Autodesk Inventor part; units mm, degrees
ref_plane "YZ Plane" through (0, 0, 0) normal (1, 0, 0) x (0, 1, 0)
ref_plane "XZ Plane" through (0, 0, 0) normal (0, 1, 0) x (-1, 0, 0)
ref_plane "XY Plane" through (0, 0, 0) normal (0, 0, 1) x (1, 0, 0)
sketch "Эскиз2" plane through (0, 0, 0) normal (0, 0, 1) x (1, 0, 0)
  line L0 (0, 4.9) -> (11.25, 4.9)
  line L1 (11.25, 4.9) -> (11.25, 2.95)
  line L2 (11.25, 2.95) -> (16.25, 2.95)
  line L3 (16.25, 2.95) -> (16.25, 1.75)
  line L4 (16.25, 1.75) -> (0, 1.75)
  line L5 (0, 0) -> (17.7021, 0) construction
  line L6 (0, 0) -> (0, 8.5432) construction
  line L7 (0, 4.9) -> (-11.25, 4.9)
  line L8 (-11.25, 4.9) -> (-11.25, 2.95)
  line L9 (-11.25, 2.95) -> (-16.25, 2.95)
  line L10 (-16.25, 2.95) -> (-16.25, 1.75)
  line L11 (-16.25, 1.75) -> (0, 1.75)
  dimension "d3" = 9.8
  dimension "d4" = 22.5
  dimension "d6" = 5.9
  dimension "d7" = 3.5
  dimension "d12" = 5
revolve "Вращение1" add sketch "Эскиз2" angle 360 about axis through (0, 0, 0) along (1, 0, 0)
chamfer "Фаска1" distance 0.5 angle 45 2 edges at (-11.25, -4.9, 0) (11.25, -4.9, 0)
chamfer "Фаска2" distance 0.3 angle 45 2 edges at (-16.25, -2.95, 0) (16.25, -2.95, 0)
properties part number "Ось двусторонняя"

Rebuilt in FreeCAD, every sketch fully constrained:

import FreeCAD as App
import Part
import Sketcher


def edges_at(feature, points):
    """Names of the edges that pass closest to the given points."""
    edges = feature.Shape.Edges
    near = lambda p: min(range(len(edges)), key=lambda i: edges[i].distToShape(Part.Vertex(*p))[0])
    return sorted({f"Edge{near(p) + 1}" for p in points})

doc = App.newDocument("Part")
body = doc.addObject("PartDesign::Body", "Body")

# Sketch on XY plane
sketch1 = doc.addObject("Sketcher::SketchObject", "Sketch")
body.addObject(sketch1)
sketch1.AttachmentSupport = (doc.XY_Plane, [""])
sketch1.MapMode = "FlatFace"
sketch1.addGeometry(Part.LineSegment(App.Vector(11.25, 4.9, 0), App.Vector(-11.25, 4.9, 0)), False)
sketch1.addGeometry(Part.LineSegment(App.Vector(-11.25, 4.9, 0), App.Vector(-11.25, 2.95, 0)), False)
sketch1.addGeometry(Part.LineSegment(App.Vector(-11.25, 2.95, 0), App.Vector(-16.25, 2.95, 0)), False)
sketch1.addGeometry(Part.LineSegment(App.Vector(-16.25, 2.95, 0), App.Vector(-16.25, 1.75, 0)), False)
sketch1.addGeometry(Part.LineSegment(App.Vector(-16.25, 1.75, 0), App.Vector(16.25, 1.75, 0)), False)
sketch1.addGeometry(Part.LineSegment(App.Vector(16.25, 1.75, 0), App.Vector(16.25, 2.95, 0)), False)
sketch1.addGeometry(Part.LineSegment(App.Vector(16.25, 2.95, 0), App.Vector(11.25, 2.95, 0)), False)
sketch1.addGeometry(Part.LineSegment(App.Vector(11.25, 2.95, 0), App.Vector(11.25, 4.9, 0)), False)
sketch1.addConstraint(Sketcher.Constraint("Coincident", 0, 2, 1, 1))
sketch1.addConstraint(Sketcher.Constraint("Coincident", 1, 2, 2, 1))
sketch1.addConstraint(Sketcher.Constraint("Coincident", 2, 2, 3, 1))
sketch1.addConstraint(Sketcher.Constraint("Coincident", 3, 2, 4, 1))
sketch1.addConstraint(Sketcher.Constraint("Coincident", 4, 2, 5, 1))
sketch1.addConstraint(Sketcher.Constraint("Coincident", 5, 2, 6, 1))
sketch1.addConstraint(Sketcher.Constraint("Coincident", 6, 2, 7, 1))
sketch1.addConstraint(Sketcher.Constraint("Coincident", 7, 2, 0, 1))
sketch1.addConstraint(Sketcher.Constraint("Horizontal", 0))
sketch1.addConstraint(Sketcher.Constraint("Vertical", 1))
sketch1.addConstraint(Sketcher.Constraint("Horizontal", 2))
sketch1.addConstraint(Sketcher.Constraint("Vertical", 3))
sketch1.addConstraint(Sketcher.Constraint("Horizontal", 4))
sketch1.addConstraint(Sketcher.Constraint("Vertical", 5))
sketch1.addConstraint(Sketcher.Constraint("Horizontal", 6))
sketch1.addConstraint(Sketcher.Constraint("Vertical", 7))
sketch1.addConstraint(Sketcher.Constraint("Symmetric", 2, 2, 5, 2, -2))
sketch1.addConstraint(Sketcher.Constraint("Equal", 2, 6))
sketch1.addConstraint(Sketcher.Constraint("DistanceX", 2, 2, 2, 1, 5.0))
sketch1.addConstraint(Sketcher.Constraint("DistanceX", 0, 2, 0, 1, 22.5))
sketch1.addConstraint(Sketcher.Constraint("DistanceY", 3, 2, 3, 1, 1.2))
sketch1.addConstraint(Sketcher.Constraint("DistanceY", 1, 2, 1, 1, 1.95))
sketch1.addConstraint(Sketcher.Constraint("DistanceY", -1, 1, 0, 2, 4.9))
revolution = doc.addObject("PartDesign::Revolution", "Revolution")
body.addObject(revolution)
revolution.Profile = sketch1
revolution.ReferenceAxis = (sketch1, ["H_Axis"])
revolution.Angle = 360
doc.recompute()

chamfer = doc.addObject("PartDesign::Chamfer", "Chamfer")
body.addObject(chamfer)
chamfer.Base = (revolution, edges_at(revolution, [(-11.25, -4.9, 0), (11.25, -4.9, 0)]))
chamfer.Size = 0.5
doc.recompute()

chamfer2 = doc.addObject("PartDesign::Chamfer", "Chamfer001")
body.addObject(chamfer2)
chamfer2.Base = (chamfer, edges_at(chamfer, [(-16.25, -2.95, 0), (16.25, -2.95, 0)]))
chamfer2.Size = 0.3

doc.recompute()
